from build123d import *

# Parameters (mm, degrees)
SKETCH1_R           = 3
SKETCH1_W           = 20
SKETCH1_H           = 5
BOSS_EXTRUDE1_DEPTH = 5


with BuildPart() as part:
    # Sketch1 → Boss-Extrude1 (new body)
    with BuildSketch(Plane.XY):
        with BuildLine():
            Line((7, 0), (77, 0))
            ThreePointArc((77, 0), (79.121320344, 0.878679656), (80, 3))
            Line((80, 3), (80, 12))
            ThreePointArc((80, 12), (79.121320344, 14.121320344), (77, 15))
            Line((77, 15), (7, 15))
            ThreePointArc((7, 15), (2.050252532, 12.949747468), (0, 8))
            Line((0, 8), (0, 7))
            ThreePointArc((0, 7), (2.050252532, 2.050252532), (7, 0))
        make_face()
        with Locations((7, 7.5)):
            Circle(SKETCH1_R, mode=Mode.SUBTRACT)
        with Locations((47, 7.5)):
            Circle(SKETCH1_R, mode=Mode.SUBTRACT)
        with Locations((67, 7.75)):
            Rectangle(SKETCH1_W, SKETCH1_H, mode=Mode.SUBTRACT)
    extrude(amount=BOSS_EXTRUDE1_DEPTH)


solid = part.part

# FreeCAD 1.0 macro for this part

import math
import FreeCAD as App
import Part
import Sketcher

V = App.Vector
Q = App.Units.Quantity

doc = App.newDocument("Part")
body = doc.addObject("PartDesign::Body", "Body")

sketch1 = body.newObject("Sketcher::SketchObject", "Sketch")
sketch1.AttachmentSupport = (doc.getObject("XY_Plane"), [""])
sketch1.MapMode = "FlatFace"
sketch1.addGeometry([
    Part.LineSegment(V(7, 0, 0), V(77, 0, 0)),
    Part.ArcOfCircle(Part.Circle(V(77, 3, 0), V(0, 0, 1), 3), math.radians(-90), math.radians(0)),
    Part.LineSegment(V(80, 3, 0), V(80, 12, 0)),
    Part.ArcOfCircle(Part.Circle(V(77, 12, 0), V(0, 0, 1), 3), math.radians(0), math.radians(90)),
    Part.LineSegment(V(77, 15, 0), V(7, 15, 0)),
    Part.ArcOfCircle(Part.Circle(V(7, 8, 0), V(0, 0, 1), 7), math.radians(90), math.radians(180)),
    Part.LineSegment(V(0, 8, 0), V(0, 7, 0)),
    Part.ArcOfCircle(Part.Circle(V(7, 7, 0), V(0, 0, 1), 7), math.radians(-180), math.radians(-90)),
    Part.Circle(V(7, 7.5, 0), V(0, 0, 1), 3),
    Part.Circle(V(47, 7.5, 0), V(0, 0, 1), 3),
    Part.LineSegment(V(77, 5.25, 0), V(57, 5.25, 0)),
    Part.LineSegment(V(57, 5.25, 0), V(57, 10.25, 0)),
    Part.LineSegment(V(57, 10.25, 0), V(77, 10.25, 0)),
    Part.LineSegment(V(77, 10.25, 0), V(77, 5.25, 0)),
], False)
sketch1.addConstraint([
    Sketcher.Constraint("Tangent", 0, 2, 1, 1),
    Sketcher.Constraint("Tangent", 1, 2, 2, 1),
    Sketcher.Constraint("Tangent", 2, 2, 3, 1),
    Sketcher.Constraint("Tangent", 3, 2, 4, 1),
    Sketcher.Constraint("Tangent", 4, 2, 5, 1),
    Sketcher.Constraint("Tangent", 5, 2, 6, 1),
    Sketcher.Constraint("Tangent", 6, 2, 7, 1),
    Sketcher.Constraint("Tangent", 7, 2, 0, 1),
    Sketcher.Constraint("Coincident", 10, 2, 11, 1),
    Sketcher.Constraint("Coincident", 11, 2, 12, 1),
    Sketcher.Constraint("Coincident", 12, 2, 13, 1),
    Sketcher.Constraint("Coincident", 13, 2, 10, 1),
    Sketcher.Constraint("Horizontal", 0),
    Sketcher.Constraint("Vertical", 2),
    Sketcher.Constraint("Horizontal", 4),
    Sketcher.Constraint("Vertical", 6),
    Sketcher.Constraint("Horizontal", 10),
    Sketcher.Constraint("Vertical", 11),
    Sketcher.Constraint("Horizontal", 12),
    Sketcher.Constraint("Vertical", 13),
    Sketcher.Constraint("Equal", 1, 3),
    Sketcher.Constraint("Equal", 5, 7),
    Sketcher.Constraint("Equal", 3, 8),
    Sketcher.Constraint("Equal", 8, 9),
    Sketcher.Constraint("PointOnObject", 0, 2, -1),
    Sketcher.Constraint("PointOnObject", 5, 2, -2),
    Sketcher.Constraint("Horizontal", 8, 3, 9, 3),
    Sketcher.Constraint("Vertical", 7, 3, 8, 3),
    Sketcher.Constraint("Vertical", 3, 2, 12, 2),
    Sketcher.Constraint("Diameter", 8, Q("6 mm")),
    Sketcher.Constraint("Radius", 5, Q("7 mm")),
    Sketcher.Constraint("DistanceX", 0, 1, 0, 2, Q("70 mm")),
    Sketcher.Constraint("DistanceX", 10, 2, 10, 1, Q("20 mm")),
    Sketcher.Constraint("DistanceY", 2, 1, 2, 2, Q("9 mm")),
    Sketcher.Constraint("DistanceY", 11, 1, 11, 2, Q("5 mm")),
    Sketcher.Constraint("DistanceX", -1, 1, 9, 3, Q("47 mm")),
    Sketcher.Constraint("DistanceY", -1, 1, 8, 3, Q("7.5 mm")),
    Sketcher.Constraint("DistanceY", -1, 1, 10, 2, Q("5.25 mm")),
])
pad1 = body.newObject("PartDesign::Pad", "Pad")
pad1.Profile = sketch1
pad1.Length = 5

doc.recompute()
